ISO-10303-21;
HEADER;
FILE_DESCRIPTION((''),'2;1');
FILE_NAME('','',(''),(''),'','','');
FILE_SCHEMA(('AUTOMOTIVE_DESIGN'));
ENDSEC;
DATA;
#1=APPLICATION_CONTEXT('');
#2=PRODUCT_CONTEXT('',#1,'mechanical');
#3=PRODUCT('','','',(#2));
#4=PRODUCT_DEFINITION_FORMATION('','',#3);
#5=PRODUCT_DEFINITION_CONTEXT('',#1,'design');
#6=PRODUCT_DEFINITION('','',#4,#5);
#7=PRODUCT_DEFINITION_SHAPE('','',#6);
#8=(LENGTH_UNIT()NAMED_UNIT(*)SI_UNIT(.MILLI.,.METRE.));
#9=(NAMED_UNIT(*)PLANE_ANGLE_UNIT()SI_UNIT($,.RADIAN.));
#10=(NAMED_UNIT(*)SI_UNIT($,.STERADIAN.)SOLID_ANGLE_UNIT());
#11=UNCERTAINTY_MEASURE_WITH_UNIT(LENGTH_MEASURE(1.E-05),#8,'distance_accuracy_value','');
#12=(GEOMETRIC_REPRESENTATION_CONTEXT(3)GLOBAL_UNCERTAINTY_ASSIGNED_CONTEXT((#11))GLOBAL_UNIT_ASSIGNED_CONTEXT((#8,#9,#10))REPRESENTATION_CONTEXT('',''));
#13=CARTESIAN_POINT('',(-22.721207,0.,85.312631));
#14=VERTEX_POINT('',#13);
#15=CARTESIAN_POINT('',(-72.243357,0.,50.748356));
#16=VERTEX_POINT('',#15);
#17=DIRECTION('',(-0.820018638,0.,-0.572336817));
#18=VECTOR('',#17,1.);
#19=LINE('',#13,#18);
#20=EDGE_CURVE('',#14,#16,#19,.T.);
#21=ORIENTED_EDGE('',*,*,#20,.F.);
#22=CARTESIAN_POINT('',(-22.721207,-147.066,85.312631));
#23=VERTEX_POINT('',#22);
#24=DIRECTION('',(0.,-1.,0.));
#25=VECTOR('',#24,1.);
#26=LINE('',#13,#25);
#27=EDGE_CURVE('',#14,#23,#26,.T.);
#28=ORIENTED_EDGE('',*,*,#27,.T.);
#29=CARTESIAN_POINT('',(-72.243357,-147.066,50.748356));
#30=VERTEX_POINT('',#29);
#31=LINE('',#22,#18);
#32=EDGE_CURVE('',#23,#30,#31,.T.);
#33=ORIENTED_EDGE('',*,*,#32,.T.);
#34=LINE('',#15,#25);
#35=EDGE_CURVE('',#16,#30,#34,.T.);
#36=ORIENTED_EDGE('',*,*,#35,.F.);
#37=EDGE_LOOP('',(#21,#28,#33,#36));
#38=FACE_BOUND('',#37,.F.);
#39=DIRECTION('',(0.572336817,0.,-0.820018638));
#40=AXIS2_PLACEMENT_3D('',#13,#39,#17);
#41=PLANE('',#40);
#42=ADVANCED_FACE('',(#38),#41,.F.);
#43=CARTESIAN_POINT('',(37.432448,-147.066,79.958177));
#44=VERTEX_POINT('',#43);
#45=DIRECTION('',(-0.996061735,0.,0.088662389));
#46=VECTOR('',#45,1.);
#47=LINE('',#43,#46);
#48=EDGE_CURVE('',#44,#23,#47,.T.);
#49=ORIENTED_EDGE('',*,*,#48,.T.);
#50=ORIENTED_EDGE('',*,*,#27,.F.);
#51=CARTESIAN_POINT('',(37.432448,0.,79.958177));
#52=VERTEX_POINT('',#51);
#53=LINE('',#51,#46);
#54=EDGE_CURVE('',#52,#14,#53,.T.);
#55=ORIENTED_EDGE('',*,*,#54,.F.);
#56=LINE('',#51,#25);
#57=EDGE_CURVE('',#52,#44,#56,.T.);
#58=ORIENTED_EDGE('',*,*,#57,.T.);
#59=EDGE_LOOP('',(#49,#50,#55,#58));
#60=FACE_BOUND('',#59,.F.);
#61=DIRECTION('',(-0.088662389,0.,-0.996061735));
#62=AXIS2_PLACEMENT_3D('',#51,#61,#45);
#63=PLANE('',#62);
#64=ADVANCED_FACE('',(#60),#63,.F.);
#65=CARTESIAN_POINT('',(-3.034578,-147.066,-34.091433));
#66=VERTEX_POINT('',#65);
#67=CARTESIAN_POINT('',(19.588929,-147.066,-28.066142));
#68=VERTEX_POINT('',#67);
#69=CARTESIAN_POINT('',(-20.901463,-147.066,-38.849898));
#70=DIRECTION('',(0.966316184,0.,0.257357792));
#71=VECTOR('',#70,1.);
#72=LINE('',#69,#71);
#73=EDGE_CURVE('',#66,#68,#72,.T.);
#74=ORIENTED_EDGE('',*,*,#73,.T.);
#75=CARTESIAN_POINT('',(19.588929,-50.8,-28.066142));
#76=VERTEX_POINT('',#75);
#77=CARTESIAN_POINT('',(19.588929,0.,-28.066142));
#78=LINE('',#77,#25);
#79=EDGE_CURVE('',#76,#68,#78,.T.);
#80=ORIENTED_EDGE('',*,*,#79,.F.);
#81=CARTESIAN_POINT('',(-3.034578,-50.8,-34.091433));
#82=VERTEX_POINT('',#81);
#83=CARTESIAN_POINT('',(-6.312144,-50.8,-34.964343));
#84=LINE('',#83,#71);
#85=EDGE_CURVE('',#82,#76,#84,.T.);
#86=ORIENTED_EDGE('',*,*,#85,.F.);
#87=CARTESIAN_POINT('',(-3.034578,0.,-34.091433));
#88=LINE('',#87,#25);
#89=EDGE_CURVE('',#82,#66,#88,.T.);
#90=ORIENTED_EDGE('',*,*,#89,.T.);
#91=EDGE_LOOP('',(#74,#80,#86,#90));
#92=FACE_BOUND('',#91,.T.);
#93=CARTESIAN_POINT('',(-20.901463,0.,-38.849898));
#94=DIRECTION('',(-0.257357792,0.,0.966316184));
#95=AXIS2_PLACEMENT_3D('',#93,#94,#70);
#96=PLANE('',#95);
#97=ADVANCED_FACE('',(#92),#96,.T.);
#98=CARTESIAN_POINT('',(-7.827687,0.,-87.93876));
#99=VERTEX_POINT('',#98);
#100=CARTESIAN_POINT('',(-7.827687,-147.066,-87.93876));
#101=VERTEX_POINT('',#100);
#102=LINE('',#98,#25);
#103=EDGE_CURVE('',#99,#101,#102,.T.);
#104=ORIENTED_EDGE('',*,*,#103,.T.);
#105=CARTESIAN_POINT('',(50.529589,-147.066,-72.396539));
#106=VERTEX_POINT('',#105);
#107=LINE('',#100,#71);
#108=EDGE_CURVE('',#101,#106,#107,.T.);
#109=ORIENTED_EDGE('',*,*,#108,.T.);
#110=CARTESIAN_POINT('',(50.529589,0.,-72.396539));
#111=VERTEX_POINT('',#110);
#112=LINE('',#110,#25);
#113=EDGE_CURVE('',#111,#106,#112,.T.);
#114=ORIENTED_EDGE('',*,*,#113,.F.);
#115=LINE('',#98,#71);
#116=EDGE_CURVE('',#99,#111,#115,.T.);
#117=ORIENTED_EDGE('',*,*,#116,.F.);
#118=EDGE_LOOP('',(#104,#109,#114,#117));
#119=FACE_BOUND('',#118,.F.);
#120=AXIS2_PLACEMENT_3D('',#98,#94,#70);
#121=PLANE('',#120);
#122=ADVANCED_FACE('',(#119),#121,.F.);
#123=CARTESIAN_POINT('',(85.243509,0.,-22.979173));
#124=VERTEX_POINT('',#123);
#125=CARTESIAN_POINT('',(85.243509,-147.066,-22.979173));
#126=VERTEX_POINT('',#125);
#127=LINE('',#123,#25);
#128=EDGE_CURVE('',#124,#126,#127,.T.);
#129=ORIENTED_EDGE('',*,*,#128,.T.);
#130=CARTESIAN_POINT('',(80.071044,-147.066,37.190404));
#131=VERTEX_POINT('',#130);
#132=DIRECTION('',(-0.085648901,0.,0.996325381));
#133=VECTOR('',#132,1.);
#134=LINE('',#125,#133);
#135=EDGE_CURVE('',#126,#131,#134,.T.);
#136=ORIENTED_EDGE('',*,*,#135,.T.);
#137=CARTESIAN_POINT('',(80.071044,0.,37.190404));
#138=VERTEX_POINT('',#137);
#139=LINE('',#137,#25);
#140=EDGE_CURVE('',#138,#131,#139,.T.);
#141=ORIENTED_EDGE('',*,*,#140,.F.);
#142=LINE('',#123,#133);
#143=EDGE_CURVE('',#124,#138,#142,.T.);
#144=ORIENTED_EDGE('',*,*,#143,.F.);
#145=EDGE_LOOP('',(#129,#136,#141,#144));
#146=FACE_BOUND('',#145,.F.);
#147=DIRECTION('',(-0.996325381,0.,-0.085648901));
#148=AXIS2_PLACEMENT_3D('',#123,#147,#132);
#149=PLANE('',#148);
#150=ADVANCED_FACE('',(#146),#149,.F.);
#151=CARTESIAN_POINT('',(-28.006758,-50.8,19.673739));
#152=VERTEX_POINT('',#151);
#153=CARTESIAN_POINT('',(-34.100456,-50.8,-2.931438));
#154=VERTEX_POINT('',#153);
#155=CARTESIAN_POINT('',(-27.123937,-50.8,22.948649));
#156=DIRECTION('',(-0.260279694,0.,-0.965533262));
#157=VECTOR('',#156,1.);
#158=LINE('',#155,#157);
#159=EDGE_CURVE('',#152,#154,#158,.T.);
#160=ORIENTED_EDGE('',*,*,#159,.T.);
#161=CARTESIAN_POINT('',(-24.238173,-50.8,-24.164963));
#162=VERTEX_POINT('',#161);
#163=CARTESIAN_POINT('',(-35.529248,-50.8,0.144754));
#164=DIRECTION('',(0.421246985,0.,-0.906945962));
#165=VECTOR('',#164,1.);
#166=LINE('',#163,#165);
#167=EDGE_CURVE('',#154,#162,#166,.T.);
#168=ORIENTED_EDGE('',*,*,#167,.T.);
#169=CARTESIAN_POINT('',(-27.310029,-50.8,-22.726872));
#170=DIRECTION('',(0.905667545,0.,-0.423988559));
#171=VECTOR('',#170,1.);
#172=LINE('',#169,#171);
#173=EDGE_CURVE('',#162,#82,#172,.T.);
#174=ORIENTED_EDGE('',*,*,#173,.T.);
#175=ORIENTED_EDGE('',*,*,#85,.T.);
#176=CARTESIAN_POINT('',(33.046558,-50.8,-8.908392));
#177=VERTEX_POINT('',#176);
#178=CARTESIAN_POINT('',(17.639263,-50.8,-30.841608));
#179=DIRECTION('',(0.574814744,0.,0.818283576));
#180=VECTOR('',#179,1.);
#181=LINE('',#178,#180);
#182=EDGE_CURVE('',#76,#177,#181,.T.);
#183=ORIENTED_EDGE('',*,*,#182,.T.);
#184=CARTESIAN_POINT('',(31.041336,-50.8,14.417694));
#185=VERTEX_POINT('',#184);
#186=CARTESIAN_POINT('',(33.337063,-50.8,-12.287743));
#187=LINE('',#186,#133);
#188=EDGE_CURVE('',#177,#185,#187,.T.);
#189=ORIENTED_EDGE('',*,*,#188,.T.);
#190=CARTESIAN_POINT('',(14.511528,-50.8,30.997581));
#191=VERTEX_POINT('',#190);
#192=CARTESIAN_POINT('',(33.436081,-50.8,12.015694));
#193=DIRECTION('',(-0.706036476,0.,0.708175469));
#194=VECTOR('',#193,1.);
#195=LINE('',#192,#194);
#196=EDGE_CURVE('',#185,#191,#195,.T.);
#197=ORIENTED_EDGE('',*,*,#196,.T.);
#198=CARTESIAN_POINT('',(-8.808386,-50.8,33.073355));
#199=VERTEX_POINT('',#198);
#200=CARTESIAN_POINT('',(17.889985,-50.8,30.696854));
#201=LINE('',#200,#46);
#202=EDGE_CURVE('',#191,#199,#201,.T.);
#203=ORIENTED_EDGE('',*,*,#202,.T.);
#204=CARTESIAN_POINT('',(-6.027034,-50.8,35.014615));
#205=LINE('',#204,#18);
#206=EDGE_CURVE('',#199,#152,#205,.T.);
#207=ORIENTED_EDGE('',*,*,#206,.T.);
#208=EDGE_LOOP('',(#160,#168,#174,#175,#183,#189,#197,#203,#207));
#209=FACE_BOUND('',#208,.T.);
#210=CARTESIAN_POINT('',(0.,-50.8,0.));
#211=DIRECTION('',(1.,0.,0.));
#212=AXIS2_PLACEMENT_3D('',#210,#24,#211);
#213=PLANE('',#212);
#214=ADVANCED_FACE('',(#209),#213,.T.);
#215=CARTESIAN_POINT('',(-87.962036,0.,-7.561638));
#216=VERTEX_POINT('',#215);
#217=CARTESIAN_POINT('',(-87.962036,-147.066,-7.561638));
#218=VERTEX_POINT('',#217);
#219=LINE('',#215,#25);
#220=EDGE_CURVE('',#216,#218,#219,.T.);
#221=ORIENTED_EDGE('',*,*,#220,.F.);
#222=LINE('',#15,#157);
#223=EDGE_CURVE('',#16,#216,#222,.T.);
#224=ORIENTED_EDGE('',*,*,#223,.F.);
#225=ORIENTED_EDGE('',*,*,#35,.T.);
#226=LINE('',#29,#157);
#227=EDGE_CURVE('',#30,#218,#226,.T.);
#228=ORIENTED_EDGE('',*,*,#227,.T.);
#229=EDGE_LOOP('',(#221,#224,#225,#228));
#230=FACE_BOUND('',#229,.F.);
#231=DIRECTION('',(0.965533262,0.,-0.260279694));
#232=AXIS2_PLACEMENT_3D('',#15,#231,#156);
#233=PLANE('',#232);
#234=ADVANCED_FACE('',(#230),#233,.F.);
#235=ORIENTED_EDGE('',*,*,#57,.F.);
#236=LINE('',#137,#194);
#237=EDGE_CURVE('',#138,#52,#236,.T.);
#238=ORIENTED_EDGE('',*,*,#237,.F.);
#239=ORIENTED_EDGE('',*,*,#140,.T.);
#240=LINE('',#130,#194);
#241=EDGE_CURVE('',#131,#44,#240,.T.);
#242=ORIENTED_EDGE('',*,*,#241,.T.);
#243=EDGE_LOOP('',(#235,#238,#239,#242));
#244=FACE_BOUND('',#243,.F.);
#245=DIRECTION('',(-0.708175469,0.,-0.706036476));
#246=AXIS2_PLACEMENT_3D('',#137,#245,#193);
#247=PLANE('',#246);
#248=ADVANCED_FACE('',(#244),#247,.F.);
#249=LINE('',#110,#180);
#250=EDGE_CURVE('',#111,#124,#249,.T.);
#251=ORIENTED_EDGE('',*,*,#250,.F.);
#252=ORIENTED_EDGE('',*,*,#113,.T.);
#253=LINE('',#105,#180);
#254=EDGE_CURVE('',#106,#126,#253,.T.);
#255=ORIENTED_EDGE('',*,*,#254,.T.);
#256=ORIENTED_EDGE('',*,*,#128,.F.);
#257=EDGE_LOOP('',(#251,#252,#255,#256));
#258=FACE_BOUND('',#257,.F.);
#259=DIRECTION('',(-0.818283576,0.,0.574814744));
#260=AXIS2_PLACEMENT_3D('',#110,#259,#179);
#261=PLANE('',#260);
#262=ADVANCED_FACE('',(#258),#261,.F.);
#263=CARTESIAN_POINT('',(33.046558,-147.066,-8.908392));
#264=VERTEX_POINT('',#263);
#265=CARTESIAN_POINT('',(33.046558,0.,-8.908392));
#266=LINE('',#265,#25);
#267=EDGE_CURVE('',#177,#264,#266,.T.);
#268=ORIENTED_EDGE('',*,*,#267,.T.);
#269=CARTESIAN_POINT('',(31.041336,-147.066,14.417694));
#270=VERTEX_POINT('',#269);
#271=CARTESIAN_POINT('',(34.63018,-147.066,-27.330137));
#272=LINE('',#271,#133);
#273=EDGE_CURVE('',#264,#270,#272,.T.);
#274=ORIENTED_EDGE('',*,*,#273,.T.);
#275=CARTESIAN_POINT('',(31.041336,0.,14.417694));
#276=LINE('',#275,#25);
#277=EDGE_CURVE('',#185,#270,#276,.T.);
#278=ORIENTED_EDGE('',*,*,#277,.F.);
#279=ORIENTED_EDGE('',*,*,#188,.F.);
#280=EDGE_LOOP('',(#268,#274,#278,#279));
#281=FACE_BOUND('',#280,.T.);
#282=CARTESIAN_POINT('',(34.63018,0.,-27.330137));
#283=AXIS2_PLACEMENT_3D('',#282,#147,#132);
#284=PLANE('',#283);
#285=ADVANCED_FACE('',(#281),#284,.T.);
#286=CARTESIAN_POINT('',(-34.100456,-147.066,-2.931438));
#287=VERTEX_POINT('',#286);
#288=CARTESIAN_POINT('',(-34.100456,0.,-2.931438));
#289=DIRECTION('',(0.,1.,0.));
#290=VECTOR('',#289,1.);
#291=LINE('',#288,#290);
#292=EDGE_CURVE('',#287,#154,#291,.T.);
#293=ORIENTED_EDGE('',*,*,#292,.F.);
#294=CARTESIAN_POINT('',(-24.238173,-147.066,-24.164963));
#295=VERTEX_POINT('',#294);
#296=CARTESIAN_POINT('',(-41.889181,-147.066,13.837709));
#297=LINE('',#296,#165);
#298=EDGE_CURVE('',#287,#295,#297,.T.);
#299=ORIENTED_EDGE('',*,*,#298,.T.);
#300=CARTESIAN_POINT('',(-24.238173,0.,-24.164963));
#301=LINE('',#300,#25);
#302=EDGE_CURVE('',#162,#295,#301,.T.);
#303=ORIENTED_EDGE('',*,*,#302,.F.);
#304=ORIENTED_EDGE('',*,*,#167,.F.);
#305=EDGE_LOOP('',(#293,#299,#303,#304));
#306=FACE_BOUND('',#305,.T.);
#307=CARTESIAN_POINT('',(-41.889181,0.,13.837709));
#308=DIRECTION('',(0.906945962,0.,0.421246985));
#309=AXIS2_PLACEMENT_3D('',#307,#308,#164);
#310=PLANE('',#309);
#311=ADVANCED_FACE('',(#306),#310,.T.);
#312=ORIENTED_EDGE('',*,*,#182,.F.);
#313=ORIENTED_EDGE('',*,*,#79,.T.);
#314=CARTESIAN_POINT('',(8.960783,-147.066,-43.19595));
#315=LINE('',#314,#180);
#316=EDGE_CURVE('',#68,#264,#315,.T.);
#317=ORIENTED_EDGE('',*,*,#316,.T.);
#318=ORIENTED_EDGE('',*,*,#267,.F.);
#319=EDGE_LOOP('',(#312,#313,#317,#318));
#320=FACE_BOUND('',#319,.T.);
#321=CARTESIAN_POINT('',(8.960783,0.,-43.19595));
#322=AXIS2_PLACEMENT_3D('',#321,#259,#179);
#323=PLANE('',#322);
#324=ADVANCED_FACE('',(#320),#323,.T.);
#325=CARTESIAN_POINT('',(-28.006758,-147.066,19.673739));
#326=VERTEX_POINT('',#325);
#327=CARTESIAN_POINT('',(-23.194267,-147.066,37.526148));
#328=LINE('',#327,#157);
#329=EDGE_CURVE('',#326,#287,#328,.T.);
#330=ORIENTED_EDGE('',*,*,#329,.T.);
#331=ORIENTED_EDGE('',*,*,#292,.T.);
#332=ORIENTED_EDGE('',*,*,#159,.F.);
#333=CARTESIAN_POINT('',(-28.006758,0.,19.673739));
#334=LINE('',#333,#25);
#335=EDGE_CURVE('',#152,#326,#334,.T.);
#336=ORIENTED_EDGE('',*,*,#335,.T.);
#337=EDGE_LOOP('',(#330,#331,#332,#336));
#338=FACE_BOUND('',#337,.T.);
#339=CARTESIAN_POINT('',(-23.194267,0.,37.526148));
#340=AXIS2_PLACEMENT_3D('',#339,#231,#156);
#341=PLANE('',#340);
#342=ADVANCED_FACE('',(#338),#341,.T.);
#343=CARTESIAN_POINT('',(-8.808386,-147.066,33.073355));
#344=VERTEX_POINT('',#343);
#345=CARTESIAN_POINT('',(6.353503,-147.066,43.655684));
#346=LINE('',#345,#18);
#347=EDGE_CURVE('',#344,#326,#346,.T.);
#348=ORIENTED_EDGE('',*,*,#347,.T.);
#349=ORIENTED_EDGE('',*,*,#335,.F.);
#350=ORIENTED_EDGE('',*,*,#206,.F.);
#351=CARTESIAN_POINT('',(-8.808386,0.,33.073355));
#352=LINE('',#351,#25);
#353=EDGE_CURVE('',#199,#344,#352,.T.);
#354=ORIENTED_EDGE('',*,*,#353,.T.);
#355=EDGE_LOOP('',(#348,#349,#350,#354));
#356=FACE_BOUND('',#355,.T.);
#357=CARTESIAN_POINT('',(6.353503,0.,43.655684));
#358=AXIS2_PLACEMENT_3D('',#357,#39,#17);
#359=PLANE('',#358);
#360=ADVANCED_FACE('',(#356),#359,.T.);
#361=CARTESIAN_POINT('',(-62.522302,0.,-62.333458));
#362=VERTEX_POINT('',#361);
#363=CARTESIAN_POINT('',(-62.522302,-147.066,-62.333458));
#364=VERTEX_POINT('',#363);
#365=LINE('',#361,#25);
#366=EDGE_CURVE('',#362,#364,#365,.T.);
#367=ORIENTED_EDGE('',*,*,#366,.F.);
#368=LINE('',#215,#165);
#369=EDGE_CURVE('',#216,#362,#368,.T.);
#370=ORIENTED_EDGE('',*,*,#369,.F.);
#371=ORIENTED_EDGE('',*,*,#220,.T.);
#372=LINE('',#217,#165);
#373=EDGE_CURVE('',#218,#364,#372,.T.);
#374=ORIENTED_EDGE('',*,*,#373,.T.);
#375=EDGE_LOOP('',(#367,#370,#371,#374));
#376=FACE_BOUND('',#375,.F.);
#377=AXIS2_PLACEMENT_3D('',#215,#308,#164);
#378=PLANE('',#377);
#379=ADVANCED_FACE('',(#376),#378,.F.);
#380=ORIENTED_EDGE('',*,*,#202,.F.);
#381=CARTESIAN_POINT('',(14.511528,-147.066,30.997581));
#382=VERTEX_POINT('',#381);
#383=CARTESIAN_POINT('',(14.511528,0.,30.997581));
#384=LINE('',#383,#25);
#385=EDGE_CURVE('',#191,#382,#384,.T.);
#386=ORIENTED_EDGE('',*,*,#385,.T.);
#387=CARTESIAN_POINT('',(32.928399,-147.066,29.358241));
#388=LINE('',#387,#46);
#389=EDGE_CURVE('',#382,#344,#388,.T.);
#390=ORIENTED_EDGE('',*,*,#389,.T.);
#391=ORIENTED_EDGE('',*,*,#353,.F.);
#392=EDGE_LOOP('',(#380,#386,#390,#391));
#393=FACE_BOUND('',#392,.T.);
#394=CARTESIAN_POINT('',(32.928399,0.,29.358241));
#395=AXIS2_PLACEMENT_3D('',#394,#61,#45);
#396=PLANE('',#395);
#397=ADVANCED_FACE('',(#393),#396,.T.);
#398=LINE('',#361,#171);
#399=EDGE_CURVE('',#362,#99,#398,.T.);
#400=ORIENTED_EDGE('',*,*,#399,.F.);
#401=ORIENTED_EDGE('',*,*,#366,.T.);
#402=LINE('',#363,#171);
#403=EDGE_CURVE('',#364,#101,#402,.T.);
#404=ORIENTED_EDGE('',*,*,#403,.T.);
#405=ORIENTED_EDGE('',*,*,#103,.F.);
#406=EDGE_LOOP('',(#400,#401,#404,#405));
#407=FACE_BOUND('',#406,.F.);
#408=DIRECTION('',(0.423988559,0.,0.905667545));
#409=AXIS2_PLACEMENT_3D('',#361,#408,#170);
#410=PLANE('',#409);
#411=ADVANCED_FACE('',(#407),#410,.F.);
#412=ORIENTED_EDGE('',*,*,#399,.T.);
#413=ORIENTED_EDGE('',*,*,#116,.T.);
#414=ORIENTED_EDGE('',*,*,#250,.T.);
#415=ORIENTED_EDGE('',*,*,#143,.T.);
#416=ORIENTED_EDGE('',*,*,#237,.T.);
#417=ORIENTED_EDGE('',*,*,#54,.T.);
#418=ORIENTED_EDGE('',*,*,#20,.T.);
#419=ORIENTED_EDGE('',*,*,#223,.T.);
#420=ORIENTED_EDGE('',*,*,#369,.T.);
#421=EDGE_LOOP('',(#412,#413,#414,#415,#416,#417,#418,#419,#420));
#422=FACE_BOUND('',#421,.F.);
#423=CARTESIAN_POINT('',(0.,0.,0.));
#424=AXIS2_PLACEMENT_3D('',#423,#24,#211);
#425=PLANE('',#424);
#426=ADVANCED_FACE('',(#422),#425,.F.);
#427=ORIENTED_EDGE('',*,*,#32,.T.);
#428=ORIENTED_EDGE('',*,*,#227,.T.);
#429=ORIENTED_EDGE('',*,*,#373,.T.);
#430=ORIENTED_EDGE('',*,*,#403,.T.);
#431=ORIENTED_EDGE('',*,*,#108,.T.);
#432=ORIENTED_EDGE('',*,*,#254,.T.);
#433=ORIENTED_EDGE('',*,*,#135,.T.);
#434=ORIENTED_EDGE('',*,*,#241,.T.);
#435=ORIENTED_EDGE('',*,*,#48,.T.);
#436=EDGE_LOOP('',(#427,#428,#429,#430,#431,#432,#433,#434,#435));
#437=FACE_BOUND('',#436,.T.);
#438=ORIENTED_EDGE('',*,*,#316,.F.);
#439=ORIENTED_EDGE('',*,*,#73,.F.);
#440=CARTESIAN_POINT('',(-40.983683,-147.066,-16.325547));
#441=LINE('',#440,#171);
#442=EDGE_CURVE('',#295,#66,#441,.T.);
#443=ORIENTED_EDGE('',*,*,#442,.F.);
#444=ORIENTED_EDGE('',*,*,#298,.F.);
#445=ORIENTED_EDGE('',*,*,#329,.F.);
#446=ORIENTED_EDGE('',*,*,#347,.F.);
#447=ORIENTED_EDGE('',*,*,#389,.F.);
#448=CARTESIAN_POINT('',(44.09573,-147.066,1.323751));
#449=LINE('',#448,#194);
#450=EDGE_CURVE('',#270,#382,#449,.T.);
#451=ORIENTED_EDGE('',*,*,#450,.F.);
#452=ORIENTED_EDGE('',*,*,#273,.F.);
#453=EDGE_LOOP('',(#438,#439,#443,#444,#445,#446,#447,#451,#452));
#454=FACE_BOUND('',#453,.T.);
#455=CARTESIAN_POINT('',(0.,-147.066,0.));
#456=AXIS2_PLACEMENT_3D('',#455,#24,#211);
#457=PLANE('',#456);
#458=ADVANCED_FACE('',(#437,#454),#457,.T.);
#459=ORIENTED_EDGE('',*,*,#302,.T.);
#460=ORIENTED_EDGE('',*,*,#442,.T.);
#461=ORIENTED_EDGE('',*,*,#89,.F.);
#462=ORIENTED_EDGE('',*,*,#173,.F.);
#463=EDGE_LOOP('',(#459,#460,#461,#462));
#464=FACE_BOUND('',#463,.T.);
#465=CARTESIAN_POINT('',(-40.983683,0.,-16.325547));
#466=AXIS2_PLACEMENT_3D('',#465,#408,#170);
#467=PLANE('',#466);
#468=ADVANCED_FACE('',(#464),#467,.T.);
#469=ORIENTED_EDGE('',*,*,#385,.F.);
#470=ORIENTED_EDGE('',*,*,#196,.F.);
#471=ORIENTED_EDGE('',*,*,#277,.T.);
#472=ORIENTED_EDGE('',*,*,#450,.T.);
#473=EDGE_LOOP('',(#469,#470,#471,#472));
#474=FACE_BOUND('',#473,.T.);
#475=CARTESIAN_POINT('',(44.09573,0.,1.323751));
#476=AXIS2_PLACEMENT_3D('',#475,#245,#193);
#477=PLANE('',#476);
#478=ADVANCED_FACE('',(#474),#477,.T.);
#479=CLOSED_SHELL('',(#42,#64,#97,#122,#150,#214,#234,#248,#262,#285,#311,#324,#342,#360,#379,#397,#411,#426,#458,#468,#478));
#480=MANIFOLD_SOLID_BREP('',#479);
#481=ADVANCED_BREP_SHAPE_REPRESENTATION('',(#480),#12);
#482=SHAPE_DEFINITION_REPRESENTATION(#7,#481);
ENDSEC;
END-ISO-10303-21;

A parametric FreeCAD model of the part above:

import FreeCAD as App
import Part
import Sketcher
Q = App.Units.Quantity


def faces_at(feature, points):
    """Names of the faces that lie closest to the given points."""
    faces = feature.Shape.Faces
    near = lambda p: min(range(len(faces)), key=lambda i: faces[i].distToShape(Part.Vertex(*p))[0])
    return sorted({f"Face{near(p) + 1}" for p in points})


def add_polygon(sketch, points):
    """Adds a closed chain of lines whose ends are joined by coincident constraints."""
    first, n = sketch.GeometryCount, len(points)
    for a, b in zip(points, points[1:] + points[:1]):
        sketch.addGeometry(Part.LineSegment(App.Vector(*a, 0), App.Vector(*b, 0)), False)
    for i in range(n):
        sketch.addConstraint(Sketcher.Constraint("Coincident", first + i, 2, first + (i + 1) % n, 1))

doc = App.newDocument("Part")
body = doc.addObject("PartDesign::Body", "Body")

# Sketch on XZ plane
sketch1 = body.newObject("Sketcher::SketchObject", "Sketch")
sketch1.AttachmentSupport = (doc.getObject("XZ_Plane"), [""])
sketch1.MapMode = "FlatFace"
add_polygon(sketch1, [(-88, -8), (-63, -62), (-8, -88), (51, -72), (85, -23), (80, 37), (37, 80), (-23, 85), (-72, 51)])  # lines 0-8
sketch1.addConstraint([
    Sketcher.Constraint("Equal", 0, 1),
    Sketcher.Constraint("Equal", 1, 2),
    Sketcher.Constraint("Equal", 2, 3),
    Sketcher.Constraint("Equal", 3, 4),
    Sketcher.Constraint("Equal", 4, 5),
    Sketcher.Constraint("Equal", 5, 6),
    Sketcher.Constraint("Equal", 6, 7),
    Sketcher.Constraint("Equal", 7, 8),
    Sketcher.Constraint("DistanceX", 7, 2, 4, 2, 152.314401),
    Sketcher.Constraint("DistanceY", 2, 2, 8, 2, 64.834901),
    Sketcher.Constraint("Distance", 2, 60.391492),
    Sketcher.Constraint("DistanceY", 1, 2, -1, 1, 87.93876),
    Sketcher.Constraint("DistanceX", -1, 1, 2, 2, 50.529589),
    Sketcher.Constraint("DistanceY", 2, 2, -1, 1, 72.396539),
    Sketcher.Constraint("DistanceX", -1, 1, 3, 2, 85.243509),
    Sketcher.Constraint("DistanceY", -1, 1, 6, 2, 85.312631),
    Sketcher.Constraint("DistanceX", 0, 2, 2, 2, 113.051891),
    Sketcher.Constraint("DistanceX", 1, 2, 4, 2, 87.898731),
])
pad1 = body.newObject("PartDesign::Pad", "Pad")
pad1.Profile = sketch1
pad1.Length = Q("5.79 in")
doc.recompute()

thickness = body.newObject("PartDesign::Thickness", "Thickness")
thickness.Base = (pad1, faces_at(pad1, [(-1.359, -147.066, -1.313)]))
thickness.Value = Q("2 in")
thickness.Reversed = True
thickness.Join = "Arc"

doc.recompute()
